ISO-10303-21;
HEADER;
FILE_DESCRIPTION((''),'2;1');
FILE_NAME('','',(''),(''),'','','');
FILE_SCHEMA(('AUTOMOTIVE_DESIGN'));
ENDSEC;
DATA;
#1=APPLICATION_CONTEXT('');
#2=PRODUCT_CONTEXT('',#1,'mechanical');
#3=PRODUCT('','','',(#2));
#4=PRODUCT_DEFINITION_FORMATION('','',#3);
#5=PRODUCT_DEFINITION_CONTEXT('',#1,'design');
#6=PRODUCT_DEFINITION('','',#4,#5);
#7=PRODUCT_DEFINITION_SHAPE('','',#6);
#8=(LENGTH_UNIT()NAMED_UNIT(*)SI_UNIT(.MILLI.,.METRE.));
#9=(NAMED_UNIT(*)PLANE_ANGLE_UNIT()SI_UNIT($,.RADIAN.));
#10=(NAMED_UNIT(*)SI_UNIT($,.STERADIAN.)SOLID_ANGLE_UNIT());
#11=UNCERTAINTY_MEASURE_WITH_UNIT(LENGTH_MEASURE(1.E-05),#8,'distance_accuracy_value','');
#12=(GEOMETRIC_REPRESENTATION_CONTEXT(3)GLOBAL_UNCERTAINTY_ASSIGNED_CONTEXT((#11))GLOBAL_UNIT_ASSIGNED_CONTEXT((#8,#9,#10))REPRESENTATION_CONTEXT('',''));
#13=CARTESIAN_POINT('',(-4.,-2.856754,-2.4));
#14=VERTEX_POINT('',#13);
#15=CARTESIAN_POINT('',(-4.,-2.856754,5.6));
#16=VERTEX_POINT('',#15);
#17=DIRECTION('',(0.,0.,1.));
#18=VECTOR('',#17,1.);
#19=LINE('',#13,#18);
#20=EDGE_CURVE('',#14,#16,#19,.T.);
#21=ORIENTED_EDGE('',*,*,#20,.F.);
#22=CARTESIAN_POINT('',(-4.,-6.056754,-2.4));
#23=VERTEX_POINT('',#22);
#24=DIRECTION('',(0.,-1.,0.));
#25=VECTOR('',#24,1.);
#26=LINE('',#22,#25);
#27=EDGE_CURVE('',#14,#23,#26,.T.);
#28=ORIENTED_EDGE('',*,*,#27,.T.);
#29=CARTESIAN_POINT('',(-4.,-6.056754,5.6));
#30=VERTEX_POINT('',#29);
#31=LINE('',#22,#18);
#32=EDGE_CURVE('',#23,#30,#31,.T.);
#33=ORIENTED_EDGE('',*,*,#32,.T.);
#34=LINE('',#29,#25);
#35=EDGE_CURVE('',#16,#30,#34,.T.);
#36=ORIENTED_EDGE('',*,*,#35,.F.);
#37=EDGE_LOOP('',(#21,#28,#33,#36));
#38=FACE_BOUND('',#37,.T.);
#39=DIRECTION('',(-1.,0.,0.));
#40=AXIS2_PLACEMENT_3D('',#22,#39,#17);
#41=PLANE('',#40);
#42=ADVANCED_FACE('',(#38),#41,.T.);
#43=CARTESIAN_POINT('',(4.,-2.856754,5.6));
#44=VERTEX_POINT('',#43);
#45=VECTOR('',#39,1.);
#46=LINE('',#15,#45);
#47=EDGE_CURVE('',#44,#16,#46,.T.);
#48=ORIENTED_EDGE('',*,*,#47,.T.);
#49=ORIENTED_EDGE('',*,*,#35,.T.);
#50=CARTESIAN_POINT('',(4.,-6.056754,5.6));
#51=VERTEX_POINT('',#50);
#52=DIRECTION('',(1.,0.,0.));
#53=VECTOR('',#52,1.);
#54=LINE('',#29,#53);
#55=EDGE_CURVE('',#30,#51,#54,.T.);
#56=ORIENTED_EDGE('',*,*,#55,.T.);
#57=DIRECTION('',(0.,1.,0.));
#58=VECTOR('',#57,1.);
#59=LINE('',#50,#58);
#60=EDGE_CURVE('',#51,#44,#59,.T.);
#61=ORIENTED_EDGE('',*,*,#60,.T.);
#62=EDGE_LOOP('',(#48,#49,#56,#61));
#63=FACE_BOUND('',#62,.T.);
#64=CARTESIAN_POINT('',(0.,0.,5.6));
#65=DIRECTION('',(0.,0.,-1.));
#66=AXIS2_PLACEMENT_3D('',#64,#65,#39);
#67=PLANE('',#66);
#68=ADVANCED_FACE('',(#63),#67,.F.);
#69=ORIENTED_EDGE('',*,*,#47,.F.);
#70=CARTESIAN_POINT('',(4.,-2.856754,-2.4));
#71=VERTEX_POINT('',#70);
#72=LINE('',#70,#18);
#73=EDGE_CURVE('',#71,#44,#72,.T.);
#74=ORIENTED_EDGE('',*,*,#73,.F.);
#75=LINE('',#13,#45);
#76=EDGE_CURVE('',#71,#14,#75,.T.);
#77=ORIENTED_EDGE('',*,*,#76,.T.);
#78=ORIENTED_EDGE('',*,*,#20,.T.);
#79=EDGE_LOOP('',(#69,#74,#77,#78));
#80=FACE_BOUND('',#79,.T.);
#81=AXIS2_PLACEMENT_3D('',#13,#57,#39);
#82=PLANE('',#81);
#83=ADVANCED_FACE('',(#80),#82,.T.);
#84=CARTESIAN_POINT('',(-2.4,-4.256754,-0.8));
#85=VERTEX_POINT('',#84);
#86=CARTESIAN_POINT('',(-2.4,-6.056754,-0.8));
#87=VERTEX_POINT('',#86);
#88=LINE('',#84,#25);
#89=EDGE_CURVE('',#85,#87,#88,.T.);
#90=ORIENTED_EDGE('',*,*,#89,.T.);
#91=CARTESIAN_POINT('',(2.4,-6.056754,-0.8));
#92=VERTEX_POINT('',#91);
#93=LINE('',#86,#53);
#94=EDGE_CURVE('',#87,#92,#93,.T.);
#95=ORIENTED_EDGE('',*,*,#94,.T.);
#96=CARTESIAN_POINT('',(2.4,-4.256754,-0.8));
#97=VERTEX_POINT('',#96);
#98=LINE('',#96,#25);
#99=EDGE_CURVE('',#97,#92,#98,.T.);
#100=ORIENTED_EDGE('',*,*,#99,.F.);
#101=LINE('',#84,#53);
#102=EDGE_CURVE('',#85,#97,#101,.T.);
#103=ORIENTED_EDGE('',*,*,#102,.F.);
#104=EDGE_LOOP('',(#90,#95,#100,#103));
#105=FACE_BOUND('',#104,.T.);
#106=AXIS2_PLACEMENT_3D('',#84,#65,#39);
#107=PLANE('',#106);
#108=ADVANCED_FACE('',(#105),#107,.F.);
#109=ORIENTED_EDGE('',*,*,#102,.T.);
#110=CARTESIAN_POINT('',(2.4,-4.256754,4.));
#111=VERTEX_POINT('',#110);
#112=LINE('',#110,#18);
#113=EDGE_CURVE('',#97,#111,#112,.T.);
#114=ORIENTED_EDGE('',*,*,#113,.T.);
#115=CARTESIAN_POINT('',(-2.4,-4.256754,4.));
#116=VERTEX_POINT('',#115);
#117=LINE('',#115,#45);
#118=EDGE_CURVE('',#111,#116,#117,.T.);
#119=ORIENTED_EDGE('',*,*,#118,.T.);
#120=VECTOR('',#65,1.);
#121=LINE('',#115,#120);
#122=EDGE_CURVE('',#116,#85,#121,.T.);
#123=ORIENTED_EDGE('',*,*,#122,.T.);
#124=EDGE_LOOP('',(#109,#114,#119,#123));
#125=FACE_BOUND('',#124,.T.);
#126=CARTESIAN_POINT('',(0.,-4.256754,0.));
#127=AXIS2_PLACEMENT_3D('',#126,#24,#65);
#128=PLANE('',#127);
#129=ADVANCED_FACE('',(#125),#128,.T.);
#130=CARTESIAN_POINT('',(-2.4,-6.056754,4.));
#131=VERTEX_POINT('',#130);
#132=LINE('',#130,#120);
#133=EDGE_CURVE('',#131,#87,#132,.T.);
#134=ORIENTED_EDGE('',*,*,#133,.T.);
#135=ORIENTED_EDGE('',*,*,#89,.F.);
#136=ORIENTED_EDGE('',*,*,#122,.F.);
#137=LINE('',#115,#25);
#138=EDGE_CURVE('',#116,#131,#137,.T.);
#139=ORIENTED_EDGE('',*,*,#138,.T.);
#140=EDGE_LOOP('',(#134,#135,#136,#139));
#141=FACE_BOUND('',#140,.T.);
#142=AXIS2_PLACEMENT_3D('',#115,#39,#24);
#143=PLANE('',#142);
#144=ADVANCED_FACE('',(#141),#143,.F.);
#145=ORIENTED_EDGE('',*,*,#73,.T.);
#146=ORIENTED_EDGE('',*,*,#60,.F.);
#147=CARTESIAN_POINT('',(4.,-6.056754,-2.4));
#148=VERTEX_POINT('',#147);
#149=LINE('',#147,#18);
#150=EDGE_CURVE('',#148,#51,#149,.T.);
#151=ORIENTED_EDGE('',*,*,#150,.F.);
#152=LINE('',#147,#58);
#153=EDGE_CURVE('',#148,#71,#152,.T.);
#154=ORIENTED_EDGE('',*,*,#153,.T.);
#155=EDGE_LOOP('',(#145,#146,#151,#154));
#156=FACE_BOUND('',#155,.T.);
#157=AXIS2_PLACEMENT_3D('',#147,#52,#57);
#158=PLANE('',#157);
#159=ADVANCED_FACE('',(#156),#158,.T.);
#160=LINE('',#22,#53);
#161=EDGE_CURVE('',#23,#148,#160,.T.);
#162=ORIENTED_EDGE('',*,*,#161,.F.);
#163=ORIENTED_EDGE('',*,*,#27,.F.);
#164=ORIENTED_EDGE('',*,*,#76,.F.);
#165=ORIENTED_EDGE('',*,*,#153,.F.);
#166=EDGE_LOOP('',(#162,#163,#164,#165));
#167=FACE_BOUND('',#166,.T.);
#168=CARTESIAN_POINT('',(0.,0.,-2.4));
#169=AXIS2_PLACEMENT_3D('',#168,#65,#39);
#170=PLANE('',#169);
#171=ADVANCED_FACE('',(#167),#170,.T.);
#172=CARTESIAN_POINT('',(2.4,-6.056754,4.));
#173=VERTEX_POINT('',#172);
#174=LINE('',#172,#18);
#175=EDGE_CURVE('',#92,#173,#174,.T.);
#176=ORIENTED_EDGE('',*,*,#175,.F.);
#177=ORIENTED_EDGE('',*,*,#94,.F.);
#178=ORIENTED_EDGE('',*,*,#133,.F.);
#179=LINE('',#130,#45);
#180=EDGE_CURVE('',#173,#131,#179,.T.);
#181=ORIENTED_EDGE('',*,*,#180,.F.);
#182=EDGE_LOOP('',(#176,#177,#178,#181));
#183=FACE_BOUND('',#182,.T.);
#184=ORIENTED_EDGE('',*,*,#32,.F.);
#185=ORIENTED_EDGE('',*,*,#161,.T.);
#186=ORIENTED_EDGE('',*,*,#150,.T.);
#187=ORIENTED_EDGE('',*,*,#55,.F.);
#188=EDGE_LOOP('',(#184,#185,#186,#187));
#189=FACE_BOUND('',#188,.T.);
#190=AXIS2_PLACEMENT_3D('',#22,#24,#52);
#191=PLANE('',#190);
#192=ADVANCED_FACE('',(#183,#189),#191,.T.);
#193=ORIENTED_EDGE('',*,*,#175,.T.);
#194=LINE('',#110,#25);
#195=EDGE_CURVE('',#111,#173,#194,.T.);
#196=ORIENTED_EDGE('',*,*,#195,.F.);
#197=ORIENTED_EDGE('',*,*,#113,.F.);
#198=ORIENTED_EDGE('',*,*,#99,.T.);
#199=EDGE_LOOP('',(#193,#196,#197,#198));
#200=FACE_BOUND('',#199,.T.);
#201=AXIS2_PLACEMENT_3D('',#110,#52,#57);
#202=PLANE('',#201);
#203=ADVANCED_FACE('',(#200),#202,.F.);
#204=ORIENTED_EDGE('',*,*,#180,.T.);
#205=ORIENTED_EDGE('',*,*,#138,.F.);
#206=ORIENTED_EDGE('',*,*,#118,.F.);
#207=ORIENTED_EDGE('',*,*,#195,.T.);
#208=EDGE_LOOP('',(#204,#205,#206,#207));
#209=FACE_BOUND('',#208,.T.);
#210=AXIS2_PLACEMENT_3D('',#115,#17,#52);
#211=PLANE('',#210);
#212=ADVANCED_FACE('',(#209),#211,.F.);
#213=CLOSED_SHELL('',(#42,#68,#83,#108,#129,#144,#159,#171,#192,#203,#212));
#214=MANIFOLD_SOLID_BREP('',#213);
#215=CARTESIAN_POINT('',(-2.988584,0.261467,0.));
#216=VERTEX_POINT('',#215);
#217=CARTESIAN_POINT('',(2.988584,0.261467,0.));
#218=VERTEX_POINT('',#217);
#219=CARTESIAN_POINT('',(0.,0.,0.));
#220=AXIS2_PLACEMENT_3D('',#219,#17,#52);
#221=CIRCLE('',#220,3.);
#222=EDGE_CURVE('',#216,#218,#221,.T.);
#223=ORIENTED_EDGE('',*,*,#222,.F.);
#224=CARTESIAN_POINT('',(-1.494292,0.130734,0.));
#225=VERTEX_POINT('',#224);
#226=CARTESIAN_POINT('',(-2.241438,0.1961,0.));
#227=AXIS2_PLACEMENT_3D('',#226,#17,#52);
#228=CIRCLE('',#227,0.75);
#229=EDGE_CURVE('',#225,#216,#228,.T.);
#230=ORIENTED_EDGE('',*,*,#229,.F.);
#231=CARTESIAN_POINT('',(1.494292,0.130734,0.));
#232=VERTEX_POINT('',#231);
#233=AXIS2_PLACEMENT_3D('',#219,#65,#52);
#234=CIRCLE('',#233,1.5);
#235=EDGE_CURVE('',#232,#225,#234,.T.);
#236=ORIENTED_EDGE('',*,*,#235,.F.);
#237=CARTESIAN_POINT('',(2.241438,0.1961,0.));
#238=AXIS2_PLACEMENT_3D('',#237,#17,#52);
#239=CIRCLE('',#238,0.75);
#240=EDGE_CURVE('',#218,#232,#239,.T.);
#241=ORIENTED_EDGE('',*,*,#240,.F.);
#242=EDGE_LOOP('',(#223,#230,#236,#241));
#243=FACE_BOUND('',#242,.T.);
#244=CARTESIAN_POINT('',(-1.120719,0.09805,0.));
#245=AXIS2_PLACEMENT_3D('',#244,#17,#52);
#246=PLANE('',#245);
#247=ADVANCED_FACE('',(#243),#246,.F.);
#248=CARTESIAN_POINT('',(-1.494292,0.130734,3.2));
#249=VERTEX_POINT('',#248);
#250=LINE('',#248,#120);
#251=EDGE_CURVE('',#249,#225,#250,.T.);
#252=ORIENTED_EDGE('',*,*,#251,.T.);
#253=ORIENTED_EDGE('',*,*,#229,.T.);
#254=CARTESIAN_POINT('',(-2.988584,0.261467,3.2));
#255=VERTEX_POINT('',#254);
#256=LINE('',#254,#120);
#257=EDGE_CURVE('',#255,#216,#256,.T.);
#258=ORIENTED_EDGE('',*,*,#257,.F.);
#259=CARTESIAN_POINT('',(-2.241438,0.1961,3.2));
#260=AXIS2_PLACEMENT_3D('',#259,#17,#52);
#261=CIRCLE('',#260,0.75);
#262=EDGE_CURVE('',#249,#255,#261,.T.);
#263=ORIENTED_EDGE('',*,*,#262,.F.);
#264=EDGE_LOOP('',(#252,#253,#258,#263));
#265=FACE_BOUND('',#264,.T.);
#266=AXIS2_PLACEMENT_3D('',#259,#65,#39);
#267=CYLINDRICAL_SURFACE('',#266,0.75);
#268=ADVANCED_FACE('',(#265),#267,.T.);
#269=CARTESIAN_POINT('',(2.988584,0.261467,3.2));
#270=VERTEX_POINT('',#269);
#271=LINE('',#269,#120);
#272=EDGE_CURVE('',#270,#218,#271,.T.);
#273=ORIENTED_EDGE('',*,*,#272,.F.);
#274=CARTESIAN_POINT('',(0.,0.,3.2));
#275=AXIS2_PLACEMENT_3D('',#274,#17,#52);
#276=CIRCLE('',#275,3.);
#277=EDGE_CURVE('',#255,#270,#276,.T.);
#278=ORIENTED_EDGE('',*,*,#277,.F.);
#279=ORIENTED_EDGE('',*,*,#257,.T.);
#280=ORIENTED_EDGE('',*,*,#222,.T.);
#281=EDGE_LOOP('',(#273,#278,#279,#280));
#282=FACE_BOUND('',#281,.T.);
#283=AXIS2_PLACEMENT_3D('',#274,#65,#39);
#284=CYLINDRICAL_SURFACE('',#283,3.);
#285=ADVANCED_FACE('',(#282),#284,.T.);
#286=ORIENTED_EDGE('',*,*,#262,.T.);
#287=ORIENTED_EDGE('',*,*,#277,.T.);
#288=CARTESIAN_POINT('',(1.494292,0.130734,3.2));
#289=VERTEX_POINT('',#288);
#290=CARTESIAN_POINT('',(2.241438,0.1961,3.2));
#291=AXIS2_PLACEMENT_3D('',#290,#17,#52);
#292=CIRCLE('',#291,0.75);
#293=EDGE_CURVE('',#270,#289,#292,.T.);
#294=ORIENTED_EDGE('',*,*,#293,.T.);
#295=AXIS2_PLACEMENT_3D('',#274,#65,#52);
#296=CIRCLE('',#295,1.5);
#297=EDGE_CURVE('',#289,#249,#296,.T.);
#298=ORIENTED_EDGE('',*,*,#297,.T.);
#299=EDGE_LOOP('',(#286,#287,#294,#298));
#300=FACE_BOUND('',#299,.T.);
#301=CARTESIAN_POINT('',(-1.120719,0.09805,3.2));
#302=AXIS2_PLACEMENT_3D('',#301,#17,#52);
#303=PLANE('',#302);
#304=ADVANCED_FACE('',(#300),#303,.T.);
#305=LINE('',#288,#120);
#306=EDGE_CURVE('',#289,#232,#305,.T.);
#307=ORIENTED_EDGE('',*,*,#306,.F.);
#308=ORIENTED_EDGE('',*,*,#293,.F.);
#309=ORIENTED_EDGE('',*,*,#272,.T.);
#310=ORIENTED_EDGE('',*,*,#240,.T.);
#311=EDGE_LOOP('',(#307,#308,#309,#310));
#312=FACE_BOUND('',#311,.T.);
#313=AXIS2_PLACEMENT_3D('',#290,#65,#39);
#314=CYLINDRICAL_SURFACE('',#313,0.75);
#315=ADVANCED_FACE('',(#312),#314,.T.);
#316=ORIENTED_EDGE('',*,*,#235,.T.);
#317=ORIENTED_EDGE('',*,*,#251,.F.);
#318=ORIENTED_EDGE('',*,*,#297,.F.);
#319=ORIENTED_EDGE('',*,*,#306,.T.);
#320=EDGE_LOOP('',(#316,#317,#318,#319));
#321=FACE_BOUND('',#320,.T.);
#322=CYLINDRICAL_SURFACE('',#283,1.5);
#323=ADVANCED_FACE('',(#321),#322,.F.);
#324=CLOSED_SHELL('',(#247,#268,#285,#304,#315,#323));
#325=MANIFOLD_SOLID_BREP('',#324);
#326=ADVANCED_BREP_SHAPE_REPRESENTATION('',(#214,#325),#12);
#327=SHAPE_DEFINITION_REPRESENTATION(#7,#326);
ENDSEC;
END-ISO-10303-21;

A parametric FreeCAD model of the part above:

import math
import FreeCAD as App
import Part
import Sketcher
Q = App.Units.Quantity

doc = App.newDocument("Part")
body = doc.addObject("PartDesign::Body", "Body")

# Sketch on XY plane
sketch1 = body.newObject("Sketcher::SketchObject", "Sketch")
sketch1.AttachmentSupport = (doc.getObject("XY_Plane"), [""])
sketch1.MapMode = "FlatFace"
sketch1.addGeometry(Part.ArcOfCircle(Part.Circle(App.Vector(0, 0, 0), App.Vector(0, 0, 1), 3), math.radians(175), math.radians(365)), False)
sketch1.addGeometry(Part.ArcOfCircle(Part.Circle(App.Vector(2.2, 0.2, 0), App.Vector(0, 0, 1), 0.8), math.radians(5), math.radians(185)), False)
sketch1.addGeometry(Part.ArcOfCircle(Part.Circle(App.Vector(0, 0, 0), App.Vector(0, 0, 1), 1.5), math.radians(175), math.radians(365)), False)
sketch1.addGeometry(Part.ArcOfCircle(Part.Circle(App.Vector(-2.2, 0.2, 0), App.Vector(0, 0, 1), 0.8), math.radians(-5), math.radians(175)), False)
sketch1.addConstraint(Sketcher.Constraint("Tangent", 0, 2, 1, 1))
sketch1.addConstraint(Sketcher.Constraint("Tangent", 1, 2, 2, 2))
sketch1.addConstraint(Sketcher.Constraint("Tangent", 2, 1, 3, 1))
sketch1.addConstraint(Sketcher.Constraint("Tangent", 3, 2, 0, 1))
sketch1.addConstraint(Sketcher.Constraint("Coincident", 0, 3, -1, 1))
sketch1.addConstraint(Sketcher.Constraint("Coincident", 2, 3, -1, 1))
sketch1.addConstraint(Sketcher.Constraint("Horizontal", 1, 3, 3, 3))
sketch1.addConstraint(Sketcher.Constraint("Radius", 0, Q("3 mm")))
sketch1.addConstraint(Sketcher.Constraint("Radius", 2, Q("1.5 mm")))
sketch1.addConstraint(Sketcher.Constraint("DistanceY", -1, 1, 1, 3, Q("0.1961 mm")))
pad1 = body.newObject("PartDesign::Pad", "Pad")
pad1.Profile = sketch1
pad1.Length = 3.2
body2 = doc.addObject("PartDesign::Body", "Body001")

# Sketch on XY plane
sketch2 = body2.newObject("Sketcher::SketchObject", "Sketch001")
sketch2.AttachmentSupport = (doc.getObject("XY_Plane001"), [""])
sketch2.MapMode = "FlatFace"
sketch2.AttachmentOffset = App.Placement(App.Vector(0, 0, 1.6), App.Rotation())
sketch2.addGeometry(Part.LineSegment(App.Vector(-4, -2.9, 0), App.Vector(-4, -6.1, 0)), False)
sketch2.addGeometry(Part.LineSegment(App.Vector(-4, -6.1, 0), App.Vector(4, -6.1, 0)), False)
sketch2.addGeometry(Part.LineSegment(App.Vector(4, -6.1, 0), App.Vector(4, -2.9, 0)), False)
sketch2.addGeometry(Part.LineSegment(App.Vector(4, -2.9, 0), App.Vector(-4, -2.9, 0)), False)
sketch2.addConstraint(Sketcher.Constraint("Coincident", 0, 2, 1, 1))
sketch2.addConstraint(Sketcher.Constraint("Coincident", 1, 2, 2, 1))
sketch2.addConstraint(Sketcher.Constraint("Coincident", 2, 2, 3, 1))
sketch2.addConstraint(Sketcher.Constraint("Coincident", 3, 2, 0, 1))
sketch2.addConstraint(Sketcher.Constraint("Vertical", 0))
sketch2.addConstraint(Sketcher.Constraint("Horizontal", 1))
sketch2.addConstraint(Sketcher.Constraint("Vertical", 2))
sketch2.addConstraint(Sketcher.Constraint("Horizontal", 3))
sketch2.addConstraint(Sketcher.Constraint("DistanceX", 1, 1, 1, 2, Q("8 mm")))
sketch2.addConstraint(Sketcher.Constraint("DistanceY", 0, 2, 0, 1, Q("3.2 mm")))
sketch2.addConstraint(Sketcher.Constraint("DistanceX", 0, 2, -1, 1, Q("4 mm")))
sketch2.addConstraint(Sketcher.Constraint("DistanceY", 0, 2, -1, 1, Q("6.056754 mm")))
pad2 = body2.newObject("PartDesign::Pad", "Pad001")
pad2.Profile = sketch2
pad2.Length = 8
pad2.Midplane = True

# Sketch on XZ plane
sketch3 = body2.newObject("Sketcher::SketchObject", "Sketch002")
sketch3.AttachmentSupport = (doc.getObject("XZ_Plane001"), [""])
sketch3.MapMode = "FlatFace"
sketch3.AttachmentOffset = App.Placement(App.Vector(0, 0, 6.056754), App.Rotation())
sketch3.addGeometry(Part.LineSegment(App.Vector(-2.4, 4, 0), App.Vector(-2.4, -0.8, 0)), False)
sketch3.addGeometry(Part.LineSegment(App.Vector(-2.4, -0.8, 0), App.Vector(2.4, -0.8, 0)), False)
sketch3.addGeometry(Part.LineSegment(App.Vector(2.4, -0.8, 0), App.Vector(2.4, 4, 0)), False)
sketch3.addGeometry(Part.LineSegment(App.Vector(2.4, 4, 0), App.Vector(-2.4, 4, 0)), False)
sketch3.addConstraint(Sketcher.Constraint("Coincident", 0, 2, 1, 1))
sketch3.addConstraint(Sketcher.Constraint("Coincident", 1, 2, 2, 1))
sketch3.addConstraint(Sketcher.Constraint("Coincident", 2, 2, 3, 1))
sketch3.addConstraint(Sketcher.Constraint("Coincident", 3, 2, 0, 1))
sketch3.addConstraint(Sketcher.Constraint("Vertical", 0))
sketch3.addConstraint(Sketcher.Constraint("Horizontal", 1))
sketch3.addConstraint(Sketcher.Constraint("Vertical", 2))
sketch3.addConstraint(Sketcher.Constraint("Horizontal", 3))
sketch3.addConstraint(Sketcher.Constraint("Equal", 3, 0))
sketch3.addConstraint(Sketcher.Constraint("DistanceX", 1, 1, 1, 2, Q("4.8 mm")))
sketch3.addConstraint(Sketcher.Constraint("DistanceY", -1, 1, 2, 2, Q("4 mm")))
sketch3.addConstraint(Sketcher.Constraint("DistanceX", 0, 2, -1, 1, Q("2.4 mm")))
pocket1 = body2.newObject("PartDesign::Pocket", "Pocket")
pocket1.Profile = sketch3
pocket1.Length = 1.8

doc.recompute()
